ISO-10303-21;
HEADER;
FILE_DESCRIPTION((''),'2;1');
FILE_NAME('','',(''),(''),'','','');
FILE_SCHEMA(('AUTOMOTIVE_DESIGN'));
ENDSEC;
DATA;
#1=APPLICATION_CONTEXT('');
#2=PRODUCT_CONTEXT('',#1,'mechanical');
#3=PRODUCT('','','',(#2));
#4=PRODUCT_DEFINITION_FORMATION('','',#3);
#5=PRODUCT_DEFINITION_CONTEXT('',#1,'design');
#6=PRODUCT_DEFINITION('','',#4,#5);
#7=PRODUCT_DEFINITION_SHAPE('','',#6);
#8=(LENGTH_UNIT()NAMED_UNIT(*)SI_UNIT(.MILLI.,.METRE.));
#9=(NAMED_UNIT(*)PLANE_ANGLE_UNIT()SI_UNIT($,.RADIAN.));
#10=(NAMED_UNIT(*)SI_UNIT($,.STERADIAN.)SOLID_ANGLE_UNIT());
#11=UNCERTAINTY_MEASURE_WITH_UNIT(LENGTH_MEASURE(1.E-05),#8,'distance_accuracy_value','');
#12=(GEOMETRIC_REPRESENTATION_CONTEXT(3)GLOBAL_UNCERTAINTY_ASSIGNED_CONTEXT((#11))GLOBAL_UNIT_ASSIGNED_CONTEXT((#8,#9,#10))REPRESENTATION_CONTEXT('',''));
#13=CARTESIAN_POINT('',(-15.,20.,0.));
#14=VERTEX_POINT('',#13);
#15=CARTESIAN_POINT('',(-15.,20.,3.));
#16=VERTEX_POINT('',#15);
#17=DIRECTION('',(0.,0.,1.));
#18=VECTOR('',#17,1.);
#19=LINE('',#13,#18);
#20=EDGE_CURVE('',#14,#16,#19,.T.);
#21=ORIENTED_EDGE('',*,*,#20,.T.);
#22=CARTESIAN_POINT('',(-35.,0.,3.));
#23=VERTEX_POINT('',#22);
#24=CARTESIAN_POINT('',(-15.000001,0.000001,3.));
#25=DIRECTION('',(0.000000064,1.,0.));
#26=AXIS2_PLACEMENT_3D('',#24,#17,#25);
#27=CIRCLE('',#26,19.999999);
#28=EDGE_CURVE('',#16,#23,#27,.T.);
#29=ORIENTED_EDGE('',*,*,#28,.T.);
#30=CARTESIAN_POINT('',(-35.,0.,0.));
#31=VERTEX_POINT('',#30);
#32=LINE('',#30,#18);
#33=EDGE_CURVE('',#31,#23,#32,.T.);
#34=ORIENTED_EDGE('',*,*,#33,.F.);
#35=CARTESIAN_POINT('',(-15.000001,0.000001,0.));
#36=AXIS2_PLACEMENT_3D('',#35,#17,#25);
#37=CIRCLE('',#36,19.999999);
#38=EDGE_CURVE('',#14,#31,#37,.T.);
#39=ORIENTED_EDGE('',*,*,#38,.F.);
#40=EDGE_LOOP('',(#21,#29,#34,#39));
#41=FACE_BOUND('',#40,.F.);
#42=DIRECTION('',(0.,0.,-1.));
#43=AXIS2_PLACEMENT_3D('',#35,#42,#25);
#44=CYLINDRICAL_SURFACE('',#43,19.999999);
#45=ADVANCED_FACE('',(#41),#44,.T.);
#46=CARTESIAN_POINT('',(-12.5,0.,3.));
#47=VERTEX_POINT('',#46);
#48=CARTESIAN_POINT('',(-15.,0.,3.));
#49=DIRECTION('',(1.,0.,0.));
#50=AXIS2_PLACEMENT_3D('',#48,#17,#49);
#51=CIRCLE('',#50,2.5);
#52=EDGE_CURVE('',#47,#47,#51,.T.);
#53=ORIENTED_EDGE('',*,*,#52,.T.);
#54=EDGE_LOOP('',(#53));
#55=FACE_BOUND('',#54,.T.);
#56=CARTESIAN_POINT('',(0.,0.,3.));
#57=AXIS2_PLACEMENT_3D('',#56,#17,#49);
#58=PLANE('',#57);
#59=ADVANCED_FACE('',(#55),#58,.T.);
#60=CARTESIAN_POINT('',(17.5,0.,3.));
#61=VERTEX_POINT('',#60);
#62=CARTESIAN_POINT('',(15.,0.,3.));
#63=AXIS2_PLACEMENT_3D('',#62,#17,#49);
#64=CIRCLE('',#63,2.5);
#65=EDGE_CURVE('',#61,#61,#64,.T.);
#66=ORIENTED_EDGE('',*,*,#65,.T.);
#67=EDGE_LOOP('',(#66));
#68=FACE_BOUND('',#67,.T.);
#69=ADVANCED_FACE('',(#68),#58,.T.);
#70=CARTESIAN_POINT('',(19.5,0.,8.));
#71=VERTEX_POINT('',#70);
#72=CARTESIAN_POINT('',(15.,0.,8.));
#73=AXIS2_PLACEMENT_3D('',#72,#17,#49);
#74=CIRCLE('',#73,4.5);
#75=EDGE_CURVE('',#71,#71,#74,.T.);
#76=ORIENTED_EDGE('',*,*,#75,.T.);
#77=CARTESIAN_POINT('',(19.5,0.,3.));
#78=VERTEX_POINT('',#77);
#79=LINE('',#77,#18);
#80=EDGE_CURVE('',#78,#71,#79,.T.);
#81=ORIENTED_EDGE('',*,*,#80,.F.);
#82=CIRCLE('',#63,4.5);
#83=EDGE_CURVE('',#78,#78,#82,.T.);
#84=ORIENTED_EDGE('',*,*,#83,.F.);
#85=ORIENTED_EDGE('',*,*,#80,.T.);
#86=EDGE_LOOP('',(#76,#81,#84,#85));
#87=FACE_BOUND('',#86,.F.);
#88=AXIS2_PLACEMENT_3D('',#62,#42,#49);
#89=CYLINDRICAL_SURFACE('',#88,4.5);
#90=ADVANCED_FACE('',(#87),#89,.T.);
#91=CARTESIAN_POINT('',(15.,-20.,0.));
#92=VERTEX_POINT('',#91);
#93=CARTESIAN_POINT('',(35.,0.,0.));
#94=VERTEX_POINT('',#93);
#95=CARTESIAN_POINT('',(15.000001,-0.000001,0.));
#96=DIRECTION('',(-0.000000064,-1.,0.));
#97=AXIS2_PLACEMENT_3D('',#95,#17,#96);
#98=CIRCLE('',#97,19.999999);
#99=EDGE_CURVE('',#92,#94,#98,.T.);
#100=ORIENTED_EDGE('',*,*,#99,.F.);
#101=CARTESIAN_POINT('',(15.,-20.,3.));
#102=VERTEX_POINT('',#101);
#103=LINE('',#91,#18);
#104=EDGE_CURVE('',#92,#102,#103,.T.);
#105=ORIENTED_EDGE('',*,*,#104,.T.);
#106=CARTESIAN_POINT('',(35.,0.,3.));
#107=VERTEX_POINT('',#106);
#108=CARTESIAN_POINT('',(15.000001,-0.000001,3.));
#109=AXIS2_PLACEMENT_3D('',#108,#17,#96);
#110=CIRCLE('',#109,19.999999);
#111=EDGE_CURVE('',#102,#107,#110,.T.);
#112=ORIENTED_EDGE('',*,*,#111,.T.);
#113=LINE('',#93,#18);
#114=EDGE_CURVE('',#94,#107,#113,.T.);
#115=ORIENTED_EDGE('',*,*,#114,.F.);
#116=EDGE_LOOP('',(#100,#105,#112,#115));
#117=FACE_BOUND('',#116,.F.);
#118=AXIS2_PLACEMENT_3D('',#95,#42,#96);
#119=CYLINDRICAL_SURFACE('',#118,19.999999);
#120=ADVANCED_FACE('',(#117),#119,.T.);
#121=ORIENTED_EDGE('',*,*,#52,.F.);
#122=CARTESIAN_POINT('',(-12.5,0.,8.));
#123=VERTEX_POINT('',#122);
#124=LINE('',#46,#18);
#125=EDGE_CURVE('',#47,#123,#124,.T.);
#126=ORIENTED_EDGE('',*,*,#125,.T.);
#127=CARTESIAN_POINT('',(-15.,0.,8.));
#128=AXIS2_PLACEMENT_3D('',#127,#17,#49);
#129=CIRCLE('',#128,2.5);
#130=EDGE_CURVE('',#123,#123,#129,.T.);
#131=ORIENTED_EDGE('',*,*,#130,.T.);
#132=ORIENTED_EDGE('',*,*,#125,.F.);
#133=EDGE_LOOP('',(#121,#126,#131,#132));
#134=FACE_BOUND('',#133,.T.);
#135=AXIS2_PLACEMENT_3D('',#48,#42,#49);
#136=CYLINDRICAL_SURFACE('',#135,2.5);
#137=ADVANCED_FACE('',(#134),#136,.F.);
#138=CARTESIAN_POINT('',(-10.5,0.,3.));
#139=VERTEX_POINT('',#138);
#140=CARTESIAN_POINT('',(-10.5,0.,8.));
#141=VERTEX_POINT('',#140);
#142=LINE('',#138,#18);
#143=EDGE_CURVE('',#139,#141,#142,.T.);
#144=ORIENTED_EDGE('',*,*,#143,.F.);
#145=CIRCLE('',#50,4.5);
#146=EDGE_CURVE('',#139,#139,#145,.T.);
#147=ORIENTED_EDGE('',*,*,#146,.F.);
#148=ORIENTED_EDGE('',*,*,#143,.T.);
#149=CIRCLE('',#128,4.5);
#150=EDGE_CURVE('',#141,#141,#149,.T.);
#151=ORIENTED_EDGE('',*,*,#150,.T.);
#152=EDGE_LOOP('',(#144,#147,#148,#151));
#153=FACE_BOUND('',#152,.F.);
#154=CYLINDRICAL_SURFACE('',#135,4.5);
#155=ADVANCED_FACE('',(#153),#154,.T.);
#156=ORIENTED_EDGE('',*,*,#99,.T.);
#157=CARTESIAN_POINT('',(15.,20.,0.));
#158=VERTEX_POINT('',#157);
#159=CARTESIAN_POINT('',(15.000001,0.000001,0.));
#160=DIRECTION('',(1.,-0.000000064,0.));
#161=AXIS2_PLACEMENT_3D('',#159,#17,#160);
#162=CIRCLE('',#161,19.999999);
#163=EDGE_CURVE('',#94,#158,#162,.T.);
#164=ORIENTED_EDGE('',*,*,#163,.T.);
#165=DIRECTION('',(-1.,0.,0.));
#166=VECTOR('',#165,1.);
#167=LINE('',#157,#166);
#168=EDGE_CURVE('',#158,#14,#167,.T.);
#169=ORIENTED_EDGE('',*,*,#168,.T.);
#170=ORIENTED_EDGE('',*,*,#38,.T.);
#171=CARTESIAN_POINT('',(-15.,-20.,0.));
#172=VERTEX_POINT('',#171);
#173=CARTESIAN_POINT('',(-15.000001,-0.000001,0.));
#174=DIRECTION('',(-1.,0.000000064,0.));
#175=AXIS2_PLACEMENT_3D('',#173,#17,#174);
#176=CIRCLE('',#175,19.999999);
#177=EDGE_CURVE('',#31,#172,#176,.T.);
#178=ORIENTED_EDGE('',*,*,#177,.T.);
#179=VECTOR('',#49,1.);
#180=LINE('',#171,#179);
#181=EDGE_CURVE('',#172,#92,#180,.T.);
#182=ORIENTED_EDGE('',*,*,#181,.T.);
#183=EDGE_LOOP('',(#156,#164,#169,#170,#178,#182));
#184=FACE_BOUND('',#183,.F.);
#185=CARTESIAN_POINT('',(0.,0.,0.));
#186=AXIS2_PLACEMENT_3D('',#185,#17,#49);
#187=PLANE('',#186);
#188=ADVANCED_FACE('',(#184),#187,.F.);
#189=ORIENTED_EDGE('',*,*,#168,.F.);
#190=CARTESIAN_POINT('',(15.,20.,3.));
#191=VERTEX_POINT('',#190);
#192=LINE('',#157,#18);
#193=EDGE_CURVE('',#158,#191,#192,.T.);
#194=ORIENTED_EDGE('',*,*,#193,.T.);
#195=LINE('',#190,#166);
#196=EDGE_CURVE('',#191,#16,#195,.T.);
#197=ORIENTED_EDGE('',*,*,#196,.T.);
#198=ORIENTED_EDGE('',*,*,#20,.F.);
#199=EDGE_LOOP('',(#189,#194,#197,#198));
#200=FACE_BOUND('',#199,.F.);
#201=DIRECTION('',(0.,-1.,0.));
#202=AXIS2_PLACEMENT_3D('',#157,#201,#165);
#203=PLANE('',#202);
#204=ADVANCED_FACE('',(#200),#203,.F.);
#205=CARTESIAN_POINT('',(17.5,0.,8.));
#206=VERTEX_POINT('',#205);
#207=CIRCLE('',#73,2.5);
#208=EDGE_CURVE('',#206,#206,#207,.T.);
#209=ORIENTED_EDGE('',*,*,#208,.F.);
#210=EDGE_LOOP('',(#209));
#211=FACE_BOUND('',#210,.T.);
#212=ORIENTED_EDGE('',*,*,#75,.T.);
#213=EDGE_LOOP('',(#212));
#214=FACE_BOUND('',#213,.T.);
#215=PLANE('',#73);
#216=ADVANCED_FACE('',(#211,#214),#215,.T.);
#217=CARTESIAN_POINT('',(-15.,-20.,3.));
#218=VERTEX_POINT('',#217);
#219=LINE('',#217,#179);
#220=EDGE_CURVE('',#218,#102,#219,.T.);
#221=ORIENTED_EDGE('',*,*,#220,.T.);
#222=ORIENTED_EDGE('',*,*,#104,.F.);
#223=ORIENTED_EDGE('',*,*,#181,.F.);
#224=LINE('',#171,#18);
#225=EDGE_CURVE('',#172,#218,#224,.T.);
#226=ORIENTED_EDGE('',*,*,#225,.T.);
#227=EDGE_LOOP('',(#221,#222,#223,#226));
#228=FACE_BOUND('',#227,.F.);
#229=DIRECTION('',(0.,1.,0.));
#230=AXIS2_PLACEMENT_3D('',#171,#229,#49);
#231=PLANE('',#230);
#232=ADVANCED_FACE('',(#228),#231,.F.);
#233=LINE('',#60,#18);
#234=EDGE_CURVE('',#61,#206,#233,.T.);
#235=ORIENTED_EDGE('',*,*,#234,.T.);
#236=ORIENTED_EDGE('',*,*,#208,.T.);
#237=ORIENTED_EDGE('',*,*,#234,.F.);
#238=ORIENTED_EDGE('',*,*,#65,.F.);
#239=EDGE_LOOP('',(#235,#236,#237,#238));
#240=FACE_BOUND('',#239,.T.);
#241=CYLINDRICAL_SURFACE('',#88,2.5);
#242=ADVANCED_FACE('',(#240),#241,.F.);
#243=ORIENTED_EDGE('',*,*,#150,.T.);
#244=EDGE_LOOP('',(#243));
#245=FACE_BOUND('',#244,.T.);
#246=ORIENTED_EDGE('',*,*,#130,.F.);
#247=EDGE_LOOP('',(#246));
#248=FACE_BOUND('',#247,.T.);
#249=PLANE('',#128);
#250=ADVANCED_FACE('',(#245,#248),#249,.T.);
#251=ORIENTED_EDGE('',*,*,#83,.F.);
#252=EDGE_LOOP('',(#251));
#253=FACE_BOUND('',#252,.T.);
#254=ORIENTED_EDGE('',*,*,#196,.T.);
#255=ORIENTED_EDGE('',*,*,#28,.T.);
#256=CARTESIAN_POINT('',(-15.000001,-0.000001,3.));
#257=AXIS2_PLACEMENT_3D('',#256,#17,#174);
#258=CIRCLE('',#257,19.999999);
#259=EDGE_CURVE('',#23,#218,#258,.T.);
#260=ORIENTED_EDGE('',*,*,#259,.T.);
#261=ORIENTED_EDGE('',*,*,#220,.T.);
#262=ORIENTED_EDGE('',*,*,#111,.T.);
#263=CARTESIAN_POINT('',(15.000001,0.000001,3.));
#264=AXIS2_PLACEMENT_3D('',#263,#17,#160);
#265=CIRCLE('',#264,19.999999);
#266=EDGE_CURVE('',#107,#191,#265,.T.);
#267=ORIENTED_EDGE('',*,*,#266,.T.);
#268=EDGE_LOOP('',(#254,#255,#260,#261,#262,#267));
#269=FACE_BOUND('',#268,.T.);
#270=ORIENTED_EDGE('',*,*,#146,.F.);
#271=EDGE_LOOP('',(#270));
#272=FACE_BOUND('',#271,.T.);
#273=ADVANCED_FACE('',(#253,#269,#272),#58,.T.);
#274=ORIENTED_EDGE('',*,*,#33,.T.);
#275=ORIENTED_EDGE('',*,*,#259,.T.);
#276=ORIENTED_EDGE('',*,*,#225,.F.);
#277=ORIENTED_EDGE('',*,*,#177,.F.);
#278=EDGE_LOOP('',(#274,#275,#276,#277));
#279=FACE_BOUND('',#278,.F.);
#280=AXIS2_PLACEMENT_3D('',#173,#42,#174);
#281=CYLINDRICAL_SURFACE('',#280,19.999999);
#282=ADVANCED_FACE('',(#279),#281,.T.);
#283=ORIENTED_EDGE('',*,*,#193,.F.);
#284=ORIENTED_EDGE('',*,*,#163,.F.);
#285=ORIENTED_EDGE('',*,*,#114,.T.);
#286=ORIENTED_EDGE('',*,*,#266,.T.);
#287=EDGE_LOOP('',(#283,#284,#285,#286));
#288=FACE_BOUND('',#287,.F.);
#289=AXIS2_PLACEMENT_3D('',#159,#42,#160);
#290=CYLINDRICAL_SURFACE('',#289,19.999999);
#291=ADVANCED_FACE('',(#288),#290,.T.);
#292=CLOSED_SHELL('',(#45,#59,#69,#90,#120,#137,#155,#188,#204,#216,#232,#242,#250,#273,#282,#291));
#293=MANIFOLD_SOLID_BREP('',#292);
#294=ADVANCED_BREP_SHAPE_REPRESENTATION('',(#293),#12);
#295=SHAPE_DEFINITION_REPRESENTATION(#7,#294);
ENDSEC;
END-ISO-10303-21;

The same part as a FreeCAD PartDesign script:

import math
import FreeCAD as App
import Part
import Sketcher
Q = App.Units.Quantity

doc = App.newDocument("Part")
body = doc.addObject("PartDesign::Body", "Body")

sketch1 = body.newObject("Sketcher::SketchObject", "Sketch")
sketch1.AttachmentSupport = (doc.getObject("XY_Plane"), [""])
sketch1.MapMode = "FlatFace"
sketch1.addGeometry([
    Part.LineSegment(App.Vector(-15, -20, 0), App.Vector(15, -20, 0)),
    Part.ArcOfCircle(Part.Circle(App.Vector(15, 0, 0), App.Vector(0, 0, 1), 20), math.radians(-90), math.radians(0)),
    Part.ArcOfCircle(Part.Circle(App.Vector(15, 0, 0), App.Vector(0, 0, 1), 20), math.radians(0), math.radians(90)),
    Part.LineSegment(App.Vector(15, 20, 0), App.Vector(-15, 20, 0)),
    Part.ArcOfCircle(Part.Circle(App.Vector(-15, 0, 0), App.Vector(0, 0, 1), 20), math.radians(90), math.radians(180)),
    Part.ArcOfCircle(Part.Circle(App.Vector(-15, 0, 0), App.Vector(0, 0, 1), 20), math.radians(180), math.radians(270)),
], False)
sketch1.addConstraint([
    Sketcher.Constraint("Tangent", 0, 2, 1, 1),
    Sketcher.Constraint("Tangent", 1, 2, 2, 1),
    Sketcher.Constraint("Tangent", 2, 2, 3, 1),
    Sketcher.Constraint("Tangent", 3, 2, 4, 1),
    Sketcher.Constraint("Tangent", 4, 2, 5, 1),
    Sketcher.Constraint("Tangent", 5, 2, 0, 1),
    Sketcher.Constraint("Horizontal", 0),
    Sketcher.Constraint("Horizontal", 3),
    Sketcher.Constraint("Equal", 1, 2),
    Sketcher.Constraint("Equal", 2, 4),
    Sketcher.Constraint("Symmetric", 1, 3, 4, 3, -1, 1),
    Sketcher.Constraint("PointOnObject", 1, 2, -1),
    Sketcher.Constraint("PointOnObject", 4, 2, -1),
    Sketcher.Constraint("Radius", 1, Q("19.999999 mm")),
    Sketcher.Constraint("DistanceX", 0, 1, 0, 2, Q("30 mm")),
])
pad1 = body.newObject("PartDesign::Pad", "Pad")
pad1.Profile = sketch1
pad1.Length = 3

sketch2 = body.newObject("Sketcher::SketchObject", "Sketch001")
sketch2.AttachmentSupport = (doc.getObject("XY_Plane"), [""])
sketch2.MapMode = "FlatFace"
sketch2.AttachmentOffset = App.Placement(App.Vector(0, 0, 3), App.Rotation())
sketch2.addGeometry([
    Part.Circle(App.Vector(-15, 0, 0), App.Vector(0, 0, 1), 4.5),
    Part.Circle(App.Vector(-15, 0, 0), App.Vector(0, 0, 1), 2.5),
    Part.Circle(App.Vector(15, 0, 0), App.Vector(0, 0, 1), 4.5),
    Part.Circle(App.Vector(15, 0, 0), App.Vector(0, 0, 1), 2.5),
], False)
sketch2.addConstraint([
    Sketcher.Constraint("Coincident", 1, 3, 0, 3),
    Sketcher.Constraint("Coincident", 3, 3, 2, 3),
    Sketcher.Constraint("Equal", 0, 2),
    Sketcher.Constraint("Equal", 1, 3),
    Sketcher.Constraint("Symmetric", 0, 3, 2, 3, -1, 1),
    Sketcher.Constraint("PointOnObject", 0, 3, -1),
    Sketcher.Constraint("Diameter", 0, Q("9 mm")),
    Sketcher.Constraint("Diameter", 1, Q("5 mm")),
    Sketcher.Constraint("DistanceX", 0, 3, -1, 1, Q("15 mm")),
])
pad2 = body.newObject("PartDesign::Pad", "Pad001")
pad2.Profile = sketch2
pad2.Length = 5

doc.recompute()
